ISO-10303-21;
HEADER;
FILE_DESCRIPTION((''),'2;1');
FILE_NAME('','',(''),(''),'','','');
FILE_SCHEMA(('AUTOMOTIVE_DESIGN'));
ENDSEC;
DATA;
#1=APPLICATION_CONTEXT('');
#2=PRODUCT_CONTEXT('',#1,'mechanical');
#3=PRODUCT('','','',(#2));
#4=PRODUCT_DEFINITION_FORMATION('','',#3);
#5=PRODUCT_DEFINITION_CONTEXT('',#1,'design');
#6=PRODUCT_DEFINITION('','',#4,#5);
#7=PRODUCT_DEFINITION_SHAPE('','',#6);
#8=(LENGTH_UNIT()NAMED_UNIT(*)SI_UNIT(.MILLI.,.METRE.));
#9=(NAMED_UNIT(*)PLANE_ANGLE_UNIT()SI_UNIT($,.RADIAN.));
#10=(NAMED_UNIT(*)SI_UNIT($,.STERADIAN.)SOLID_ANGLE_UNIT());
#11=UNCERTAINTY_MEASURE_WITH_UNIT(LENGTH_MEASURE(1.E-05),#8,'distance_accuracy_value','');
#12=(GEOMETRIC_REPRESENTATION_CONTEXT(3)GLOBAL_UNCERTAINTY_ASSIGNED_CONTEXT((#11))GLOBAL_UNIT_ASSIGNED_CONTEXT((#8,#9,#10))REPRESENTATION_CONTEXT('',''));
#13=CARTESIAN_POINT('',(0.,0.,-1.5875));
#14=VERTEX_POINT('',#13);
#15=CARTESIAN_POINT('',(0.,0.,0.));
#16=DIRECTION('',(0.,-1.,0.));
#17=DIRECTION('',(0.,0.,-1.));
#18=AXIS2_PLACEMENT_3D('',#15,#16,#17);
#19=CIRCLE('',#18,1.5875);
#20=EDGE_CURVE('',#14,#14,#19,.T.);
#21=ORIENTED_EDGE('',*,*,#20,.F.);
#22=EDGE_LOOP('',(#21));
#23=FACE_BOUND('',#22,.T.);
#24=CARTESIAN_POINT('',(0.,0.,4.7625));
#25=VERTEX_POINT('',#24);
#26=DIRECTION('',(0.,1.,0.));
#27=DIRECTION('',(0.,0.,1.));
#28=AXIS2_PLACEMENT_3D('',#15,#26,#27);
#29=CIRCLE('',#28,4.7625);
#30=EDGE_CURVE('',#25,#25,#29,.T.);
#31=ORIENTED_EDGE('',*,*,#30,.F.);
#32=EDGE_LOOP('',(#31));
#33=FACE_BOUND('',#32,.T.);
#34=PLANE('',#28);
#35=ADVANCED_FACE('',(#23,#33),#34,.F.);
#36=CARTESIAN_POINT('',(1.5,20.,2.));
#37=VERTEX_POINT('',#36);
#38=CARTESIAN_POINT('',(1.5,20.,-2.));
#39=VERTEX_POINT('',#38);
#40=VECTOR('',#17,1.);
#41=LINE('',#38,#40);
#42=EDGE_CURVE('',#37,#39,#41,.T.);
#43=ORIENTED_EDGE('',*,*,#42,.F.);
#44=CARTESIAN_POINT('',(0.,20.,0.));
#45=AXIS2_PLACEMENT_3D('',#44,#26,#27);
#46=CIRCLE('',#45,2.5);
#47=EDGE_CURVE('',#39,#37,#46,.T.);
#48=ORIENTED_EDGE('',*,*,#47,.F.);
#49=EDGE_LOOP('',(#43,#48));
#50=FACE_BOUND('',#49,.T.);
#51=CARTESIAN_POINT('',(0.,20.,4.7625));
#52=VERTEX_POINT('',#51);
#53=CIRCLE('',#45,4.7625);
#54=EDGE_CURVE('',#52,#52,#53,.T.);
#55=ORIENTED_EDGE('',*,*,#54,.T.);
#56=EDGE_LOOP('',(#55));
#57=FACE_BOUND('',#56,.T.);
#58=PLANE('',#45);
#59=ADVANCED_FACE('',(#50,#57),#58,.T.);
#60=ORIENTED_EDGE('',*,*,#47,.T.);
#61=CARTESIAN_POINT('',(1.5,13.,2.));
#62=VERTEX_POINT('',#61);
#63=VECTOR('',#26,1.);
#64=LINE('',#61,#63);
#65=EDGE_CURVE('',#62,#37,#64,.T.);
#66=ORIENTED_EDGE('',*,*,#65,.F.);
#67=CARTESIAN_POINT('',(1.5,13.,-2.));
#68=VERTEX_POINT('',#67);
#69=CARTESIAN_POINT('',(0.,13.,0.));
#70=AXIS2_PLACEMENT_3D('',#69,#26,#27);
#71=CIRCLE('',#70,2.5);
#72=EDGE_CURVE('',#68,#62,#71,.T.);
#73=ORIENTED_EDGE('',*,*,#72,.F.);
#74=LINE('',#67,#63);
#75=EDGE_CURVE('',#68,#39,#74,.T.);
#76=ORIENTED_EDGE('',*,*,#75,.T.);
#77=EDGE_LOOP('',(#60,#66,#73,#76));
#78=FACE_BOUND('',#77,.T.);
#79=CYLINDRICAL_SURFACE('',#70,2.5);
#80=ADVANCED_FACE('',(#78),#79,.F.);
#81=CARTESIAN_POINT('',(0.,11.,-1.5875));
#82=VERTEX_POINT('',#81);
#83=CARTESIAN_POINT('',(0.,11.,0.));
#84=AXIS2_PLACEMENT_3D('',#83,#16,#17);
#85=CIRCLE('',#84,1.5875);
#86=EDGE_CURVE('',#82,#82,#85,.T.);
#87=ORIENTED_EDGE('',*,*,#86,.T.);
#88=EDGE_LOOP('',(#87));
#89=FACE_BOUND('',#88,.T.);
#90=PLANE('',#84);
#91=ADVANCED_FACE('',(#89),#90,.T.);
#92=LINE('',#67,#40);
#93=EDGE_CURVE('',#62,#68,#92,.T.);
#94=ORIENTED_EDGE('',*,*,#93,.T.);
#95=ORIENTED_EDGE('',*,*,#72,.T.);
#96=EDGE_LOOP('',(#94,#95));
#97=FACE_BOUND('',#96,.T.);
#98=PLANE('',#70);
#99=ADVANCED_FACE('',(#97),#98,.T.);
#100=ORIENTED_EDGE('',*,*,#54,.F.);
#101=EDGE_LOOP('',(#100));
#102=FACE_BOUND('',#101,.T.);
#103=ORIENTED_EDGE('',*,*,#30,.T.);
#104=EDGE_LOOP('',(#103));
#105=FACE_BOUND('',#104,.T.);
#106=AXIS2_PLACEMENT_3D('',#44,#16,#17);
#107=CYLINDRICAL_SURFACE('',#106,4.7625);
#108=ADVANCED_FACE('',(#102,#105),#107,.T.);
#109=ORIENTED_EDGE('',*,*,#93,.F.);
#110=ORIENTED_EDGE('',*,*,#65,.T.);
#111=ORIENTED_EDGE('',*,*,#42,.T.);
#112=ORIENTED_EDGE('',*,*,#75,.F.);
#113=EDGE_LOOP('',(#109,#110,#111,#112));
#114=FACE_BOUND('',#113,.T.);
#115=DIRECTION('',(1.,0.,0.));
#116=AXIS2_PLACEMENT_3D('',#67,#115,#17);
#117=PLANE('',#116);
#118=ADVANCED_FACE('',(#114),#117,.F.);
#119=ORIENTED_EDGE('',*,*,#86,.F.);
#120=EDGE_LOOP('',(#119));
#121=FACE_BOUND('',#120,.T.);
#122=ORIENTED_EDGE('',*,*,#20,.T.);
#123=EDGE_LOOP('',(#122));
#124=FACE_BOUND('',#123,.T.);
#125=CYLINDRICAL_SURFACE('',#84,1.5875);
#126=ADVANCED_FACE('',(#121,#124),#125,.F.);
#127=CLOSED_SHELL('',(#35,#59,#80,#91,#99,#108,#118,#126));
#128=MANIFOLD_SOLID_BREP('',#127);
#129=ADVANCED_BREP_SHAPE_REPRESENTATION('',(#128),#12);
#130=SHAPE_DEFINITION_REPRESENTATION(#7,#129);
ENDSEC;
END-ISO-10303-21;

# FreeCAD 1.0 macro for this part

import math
import FreeCAD as App
import Part
import Sketcher

doc = App.newDocument("Part")
body = doc.addObject("PartDesign::Body", "Body")

# Sketch on XZ plane
sketch1 = body.newObject("Sketcher::SketchObject", "Sketch")
sketch1.AttachmentSupport = (doc.getObject("XZ_Plane"), [""])
sketch1.MapMode = "FlatFace"
sketch1.addGeometry(Part.Circle(App.Vector(0, 0, 0), App.Vector(0, 0, 1), 4.7625), False)
sketch1.addConstraint([
    Sketcher.Constraint("Coincident", 0, 3, -1, 1),
    Sketcher.Constraint("Diameter", 0, 9.525),
])
pad1 = body.newObject("PartDesign::Pad", "Pad")
pad1.Profile = sketch1
pad1.Length = 20
pad1.Reversed = True

# Sketch on XZ plane
sketch2 = body.newObject("Sketcher::SketchObject", "Sketch001")
sketch2.AttachmentSupport = (doc.getObject("XZ_Plane"), [""])
sketch2.MapMode = "FlatFace"
sketch2.AttachmentOffset = App.Placement(App.Vector(0, 0, -20), App.Rotation())
sketch2.addGeometry([
    Part.LineSegment(App.Vector(1.5, 2, 0), App.Vector(1.5, -2, 0)),
    Part.ArcOfCircle(Part.Circle(App.Vector(0, 0, 0), App.Vector(0, 0, 1), 2.5), math.radians(53.130102), math.radians(306.869898)),
], False)
sketch2.addConstraint([
    Sketcher.Constraint("Coincident", 0, 1, 1, 1),
    Sketcher.Constraint("Coincident", 1, 2, 0, 2),
    Sketcher.Constraint("Vertical", 0),
    Sketcher.Constraint("Coincident", 1, 3, -1, 1),
    Sketcher.Constraint("Radius", 1, 2.5),
    Sketcher.Constraint("DistanceY", 0, 2, 0, 1, 4.0),
])
pocket1 = body.newObject("PartDesign::Pocket", "Pocket")
pocket1.Profile = sketch2
pocket1.Length = 7
pocket1.Reversed = True

# Sketch on XZ plane
sketch3 = body.newObject("Sketcher::SketchObject", "Sketch002")
sketch3.AttachmentSupport = (doc.getObject("XZ_Plane"), [""])
sketch3.MapMode = "FlatFace"
sketch3.addGeometry(Part.Circle(App.Vector(0, 0, 0), App.Vector(0, 0, 1), 1.5875), False)
sketch3.addConstraint([
    Sketcher.Constraint("Coincident", 0, 3, -1, 1),
    Sketcher.Constraint("Diameter", 0, 3.175),
])
pocket2 = body.newObject("PartDesign::Pocket", "Pocket001")
pocket2.Profile = sketch3
pocket2.Length = 11

doc.recompute()
